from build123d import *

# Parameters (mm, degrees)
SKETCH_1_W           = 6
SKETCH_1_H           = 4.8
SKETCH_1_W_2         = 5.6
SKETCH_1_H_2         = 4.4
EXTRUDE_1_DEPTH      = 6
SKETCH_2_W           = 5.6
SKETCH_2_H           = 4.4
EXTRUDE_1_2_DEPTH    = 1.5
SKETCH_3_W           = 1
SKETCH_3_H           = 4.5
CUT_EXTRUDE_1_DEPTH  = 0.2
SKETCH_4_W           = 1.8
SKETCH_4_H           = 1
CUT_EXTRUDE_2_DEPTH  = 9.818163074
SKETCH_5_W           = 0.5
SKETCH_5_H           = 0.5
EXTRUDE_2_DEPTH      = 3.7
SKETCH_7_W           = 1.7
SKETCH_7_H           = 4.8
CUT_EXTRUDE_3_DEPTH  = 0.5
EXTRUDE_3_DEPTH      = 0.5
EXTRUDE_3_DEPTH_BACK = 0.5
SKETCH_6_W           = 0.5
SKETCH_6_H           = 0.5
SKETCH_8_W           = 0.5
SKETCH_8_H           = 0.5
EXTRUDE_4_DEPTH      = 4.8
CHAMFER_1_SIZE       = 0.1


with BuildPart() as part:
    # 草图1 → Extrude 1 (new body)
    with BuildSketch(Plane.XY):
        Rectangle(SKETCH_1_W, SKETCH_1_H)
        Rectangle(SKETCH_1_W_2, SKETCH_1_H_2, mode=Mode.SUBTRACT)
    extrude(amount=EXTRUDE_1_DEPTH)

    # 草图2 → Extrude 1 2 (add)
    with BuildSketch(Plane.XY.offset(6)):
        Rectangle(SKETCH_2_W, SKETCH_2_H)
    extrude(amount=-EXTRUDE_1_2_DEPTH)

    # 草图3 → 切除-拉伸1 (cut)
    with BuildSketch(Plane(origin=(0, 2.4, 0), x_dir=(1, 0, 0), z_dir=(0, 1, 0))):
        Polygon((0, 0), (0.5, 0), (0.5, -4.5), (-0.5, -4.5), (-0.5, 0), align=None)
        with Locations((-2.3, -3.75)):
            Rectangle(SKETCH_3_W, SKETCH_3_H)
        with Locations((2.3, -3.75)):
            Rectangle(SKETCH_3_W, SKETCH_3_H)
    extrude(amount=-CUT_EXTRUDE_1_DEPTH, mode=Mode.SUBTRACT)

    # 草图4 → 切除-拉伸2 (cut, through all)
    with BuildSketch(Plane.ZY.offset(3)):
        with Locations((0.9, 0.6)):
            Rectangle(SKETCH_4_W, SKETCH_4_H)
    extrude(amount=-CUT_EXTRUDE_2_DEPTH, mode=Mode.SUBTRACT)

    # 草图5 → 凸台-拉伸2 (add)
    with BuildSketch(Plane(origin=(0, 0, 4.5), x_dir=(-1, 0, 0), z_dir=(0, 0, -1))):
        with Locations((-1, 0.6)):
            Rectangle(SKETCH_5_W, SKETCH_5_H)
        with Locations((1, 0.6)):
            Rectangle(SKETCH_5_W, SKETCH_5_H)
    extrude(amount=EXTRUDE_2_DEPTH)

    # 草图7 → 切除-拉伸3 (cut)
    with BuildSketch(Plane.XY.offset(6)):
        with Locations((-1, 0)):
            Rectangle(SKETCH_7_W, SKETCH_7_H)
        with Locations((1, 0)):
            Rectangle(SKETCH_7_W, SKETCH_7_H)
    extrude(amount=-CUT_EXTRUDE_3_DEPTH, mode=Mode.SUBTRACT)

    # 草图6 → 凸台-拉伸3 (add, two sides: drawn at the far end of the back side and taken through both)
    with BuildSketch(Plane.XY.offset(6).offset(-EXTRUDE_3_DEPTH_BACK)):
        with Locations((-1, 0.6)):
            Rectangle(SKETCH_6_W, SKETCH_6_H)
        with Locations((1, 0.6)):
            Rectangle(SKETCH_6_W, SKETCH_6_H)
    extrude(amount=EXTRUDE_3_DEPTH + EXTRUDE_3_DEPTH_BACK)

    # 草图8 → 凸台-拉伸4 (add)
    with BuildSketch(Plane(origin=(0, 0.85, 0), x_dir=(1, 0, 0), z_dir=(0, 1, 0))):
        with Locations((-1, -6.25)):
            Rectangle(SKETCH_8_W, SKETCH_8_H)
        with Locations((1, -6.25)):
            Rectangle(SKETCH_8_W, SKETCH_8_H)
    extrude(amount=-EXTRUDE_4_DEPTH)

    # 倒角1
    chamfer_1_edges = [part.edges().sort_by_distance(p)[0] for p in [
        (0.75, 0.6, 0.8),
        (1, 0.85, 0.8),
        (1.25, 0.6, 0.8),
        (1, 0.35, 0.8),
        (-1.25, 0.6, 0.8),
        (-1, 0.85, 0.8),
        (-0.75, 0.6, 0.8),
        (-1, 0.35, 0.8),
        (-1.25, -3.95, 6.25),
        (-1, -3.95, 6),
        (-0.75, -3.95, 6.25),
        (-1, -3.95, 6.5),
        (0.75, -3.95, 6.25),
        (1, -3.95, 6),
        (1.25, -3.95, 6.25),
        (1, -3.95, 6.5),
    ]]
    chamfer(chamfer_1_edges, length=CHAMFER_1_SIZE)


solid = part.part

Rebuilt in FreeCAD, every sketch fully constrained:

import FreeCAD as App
import Part
import Sketcher


def edges_at(feature, points):
    """Names of the edges that pass closest to the given points."""
    edges = feature.Shape.Edges
    near = lambda p: min(range(len(edges)), key=lambda i: edges[i].distToShape(Part.Vertex(*p))[0])
    return sorted({f"Edge{near(p) + 1}" for p in points})

doc = App.newDocument("Part")
params = doc.addObject("Spreadsheet::Sheet", "Params")
for row, (alias, value) in enumerate([
    ("sketch1_width", "6 mm"),
    ("sketch1_width2", "5.6 mm"),
    ("sketch1_height", "4.8 mm"),
    ("sketch1_height2", "4.4 mm"),
    ("pad1_length", "6 mm"),
    ("sketch2_width", "5.6 mm"),
    ("sketch2_height", "4.4 mm"),
    ("pad2_length", "1.5 mm"),
    ("sketch3_width", "1 mm"),
    ("sketch3_height", "4.5 mm"),
    ("pocket1_length", "0.2 mm"),
    ("sketch4_width", "1 mm"),
    ("sketch4_height", "1.8 mm"),
    ("sketch5_width", "0.5 mm"),
    ("pad3_length", "3.7 mm"),
    ("sketch6_width", "1.7 mm"),
    ("sketch6_height", "4.8 mm"),
    ("pocket3_length", "0.5 mm"),
    ("sketch7_width", "0.5 mm"),
    ("pad4_length", "0.5 mm"),
    ("pad4_length2", "0.5 mm"),
    ("sketch8_width", "0.5 mm"),
    ("pad5_length", "4.8 mm"),
    ("chamfer_size", "0.1 mm"),
], start=1):
    params.set(f"A{row}", alias)
    params.set(f"B{row}", "=" + value)
    params.setAlias(f"B{row}", alias)

body = doc.addObject("PartDesign::Body", "Body")

sketch1 = doc.addObject("Sketcher::SketchObject", "Sketch")
body.addObject(sketch1)
sketch1.AttachmentSupport = (doc.XY_Plane, [""])
sketch1.MapMode = "FlatFace"
sketch1.addGeometry([
    Part.LineSegment(App.Vector(-3, 2.4, 0), App.Vector(-3, -2.4, 0)),
    Part.LineSegment(App.Vector(-3, -2.4, 0), App.Vector(3, -2.4, 0)),
    Part.LineSegment(App.Vector(3, -2.4, 0), App.Vector(3, 2.4, 0)),
    Part.LineSegment(App.Vector(3, 2.4, 0), App.Vector(-3, 2.4, 0)),
    Part.LineSegment(App.Vector(2.8, -2.2, 0), App.Vector(-2.8, -2.2, 0)),
    Part.LineSegment(App.Vector(-2.8, -2.2, 0), App.Vector(-2.8, 2.2, 0)),
    Part.LineSegment(App.Vector(-2.8, 2.2, 0), App.Vector(2.8, 2.2, 0)),
    Part.LineSegment(App.Vector(2.8, 2.2, 0), App.Vector(2.8, -2.2, 0)),
], False)
sketch1.addConstraint([
    Sketcher.Constraint("Coincident", 0, 2, 1, 1),
    Sketcher.Constraint("Coincident", 1, 2, 2, 1),
    Sketcher.Constraint("Coincident", 2, 2, 3, 1),
    Sketcher.Constraint("Coincident", 3, 2, 0, 1),
    Sketcher.Constraint("Coincident", 4, 2, 5, 1),
    Sketcher.Constraint("Coincident", 5, 2, 6, 1),
    Sketcher.Constraint("Coincident", 6, 2, 7, 1),
    Sketcher.Constraint("Coincident", 7, 2, 4, 1),
    Sketcher.Constraint("Vertical", 0),
    Sketcher.Constraint("Horizontal", 1),
    Sketcher.Constraint("Vertical", 2),
    Sketcher.Constraint("Horizontal", 3),
    Sketcher.Constraint("Horizontal", 4),
    Sketcher.Constraint("Vertical", 5),
    Sketcher.Constraint("Horizontal", 6),
    Sketcher.Constraint("Vertical", 7),
    Sketcher.Constraint("Symmetric", 0, 2, 2, 2, -1, 1),
    Sketcher.Constraint("Symmetric", 4, 2, 6, 2, -1, 1),
    Sketcher.Constraint("DistanceX", 1, 1, 1, 2, 6.0),
    Sketcher.Constraint("DistanceX", 4, 2, 4, 1, 5.6),
    Sketcher.Constraint("DistanceY", 0, 2, 0, 1, 4.8),
    Sketcher.Constraint("DistanceY", 5, 1, 5, 2, 4.4),
])
sketch1.setExpression("Constraints[18]", "Params.sketch1_width")
sketch1.setExpression("Constraints[19]", "Params.sketch1_width2")
sketch1.setExpression("Constraints[20]", "Params.sketch1_height")
sketch1.setExpression("Constraints[21]", "Params.sketch1_height2")
pad1 = doc.addObject("PartDesign::Pad", "Pad")
body.addObject(pad1)
pad1.Profile = sketch1
pad1.setExpression("Length", "Params.pad1_length")

sketch2 = doc.addObject("Sketcher::SketchObject", "Sketch001")
body.addObject(sketch2)
sketch2.AttachmentSupport = (doc.XY_Plane, [""])
sketch2.MapMode = "FlatFace"
sketch2.AttachmentOffset = App.Placement(App.Vector(0, 0, 6), App.Rotation())
sketch2.addGeometry([
    Part.LineSegment(App.Vector(-2.8, 2.2, 0), App.Vector(-2.8, -2.2, 0)),
    Part.LineSegment(App.Vector(-2.8, -2.2, 0), App.Vector(2.8, -2.2, 0)),
    Part.LineSegment(App.Vector(2.8, -2.2, 0), App.Vector(2.8, 2.2, 0)),
    Part.LineSegment(App.Vector(2.8, 2.2, 0), App.Vector(-2.8, 2.2, 0)),
], False)
sketch2.addConstraint([
    Sketcher.Constraint("Coincident", 0, 2, 1, 1),
    Sketcher.Constraint("Coincident", 1, 2, 2, 1),
    Sketcher.Constraint("Coincident", 2, 2, 3, 1),
    Sketcher.Constraint("Coincident", 3, 2, 0, 1),
    Sketcher.Constraint("Vertical", 0),
    Sketcher.Constraint("Horizontal", 1),
    Sketcher.Constraint("Vertical", 2),
    Sketcher.Constraint("Horizontal", 3),
    Sketcher.Constraint("Symmetric", 0, 2, 2, 2, -1, 1),
    Sketcher.Constraint("DistanceX", 1, 1, 1, 2, 5.6),
    Sketcher.Constraint("DistanceY", 0, 2, 0, 1, 4.4),
])
sketch2.setExpression("Constraints[9]", "Params.sketch2_width")
sketch2.setExpression("Constraints[10]", "Params.sketch2_height")
pad2 = doc.addObject("PartDesign::Pad", "Pad001")
body.addObject(pad2)
pad2.Profile = sketch2
pad2.setExpression("Length", "Params.pad2_length")
pad2.Reversed = True

sketch3 = doc.addObject("Sketcher::SketchObject", "Sketch002")
body.addObject(sketch3)
sketch3.AttachmentSupport = (doc.XZ_Plane, [""])
sketch3.MapMode = "FlatFace"
sketch3.AttachmentOffset = App.Placement(App.Vector(0, 0, -2.4), App.Rotation())
sketch3.addGeometry([
    Part.LineSegment(App.Vector(0.5, 0, 0), App.Vector(-0.5, 0, 0)),
    Part.LineSegment(App.Vector(-0.5, 0, 0), App.Vector(-0.5, 4.5, 0)),
    Part.LineSegment(App.Vector(-0.5, 4.5, 0), App.Vector(0.5, 4.5, 0)),
    Part.LineSegment(App.Vector(0.5, 4.5, 0), App.Vector(0.5, 0, 0)),
    Part.LineSegment(App.Vector(-2.8, 1.5, 0), App.Vector(-2.8, 6, 0)),
    Part.LineSegment(App.Vector(-2.8, 6, 0), App.Vector(-1.8, 6, 0)),
    Part.LineSegment(App.Vector(-1.8, 6, 0), App.Vector(-1.8, 1.5, 0)),
    Part.LineSegment(App.Vector(-1.8, 1.5, 0), App.Vector(-2.8, 1.5, 0)),
    Part.LineSegment(App.Vector(1.8, 1.5, 0), App.Vector(1.8, 6, 0)),
    Part.LineSegment(App.Vector(1.8, 6, 0), App.Vector(2.8, 6, 0)),
    Part.LineSegment(App.Vector(2.8, 6, 0), App.Vector(2.8, 1.5, 0)),
    Part.LineSegment(App.Vector(2.8, 1.5, 0), App.Vector(1.8, 1.5, 0)),
], False)
sketch3.addConstraint([
    Sketcher.Constraint("Coincident", 0, 2, 1, 1),
    Sketcher.Constraint("Coincident", 1, 2, 2, 1),
    Sketcher.Constraint("Coincident", 2, 2, 3, 1),
    Sketcher.Constraint("Coincident", 3, 2, 0, 1),
    Sketcher.Constraint("Coincident", 4, 2, 5, 1),
    Sketcher.Constraint("Coincident", 5, 2, 6, 1),
    Sketcher.Constraint("Coincident", 6, 2, 7, 1),
    Sketcher.Constraint("Coincident", 7, 2, 4, 1),
    Sketcher.Constraint("Coincident", 8, 2, 9, 1),
    Sketcher.Constraint("Coincident", 9, 2, 10, 1),
    Sketcher.Constraint("Coincident", 10, 2, 11, 1),
    Sketcher.Constraint("Coincident", 11, 2, 8, 1),
    Sketcher.Constraint("Horizontal", 0),
    Sketcher.Constraint("Vertical", 1),
    Sketcher.Constraint("Horizontal", 2),
    Sketcher.Constraint("Vertical", 3),
    Sketcher.Constraint("Vertical", 4),
    Sketcher.Constraint("Horizontal", 5),
    Sketcher.Constraint("Vertical", 6),
    Sketcher.Constraint("Horizontal", 7),
    Sketcher.Constraint("Vertical", 8),
    Sketcher.Constraint("Horizontal", 9),
    Sketcher.Constraint("Vertical", 10),
    Sketcher.Constraint("Horizontal", 11),
    Sketcher.Constraint("Symmetric", 0, 2, 3, 2, -1, 1),
    Sketcher.Constraint("Symmetric", 5, 2, 8, 2, -2),
    Sketcher.Constraint("Symmetric", 7, 2, 10, 2, -2),
    Sketcher.Constraint("Equal", 2, 5),
    Sketcher.Constraint("Equal", 3, 4),
    Sketcher.Constraint("DistanceX", 0, 2, 0, 1, 1.0),
    Sketcher.Constraint("DistanceY", 1, 1, 1, 2, 4.5),
    Sketcher.Constraint("DistanceY", -1, 1, 4, 2, 6.0),
    Sketcher.Constraint("DistanceX", 4, 2, -1, 1, 2.8),
])
sketch3.setExpression("Constraints[29]", "Params.sketch3_width")
sketch3.setExpression("Constraints[30]", "Params.sketch3_height")
pocket1 = doc.addObject("PartDesign::Pocket", "Pocket")
body.addObject(pocket1)
pocket1.Profile = sketch3
pocket1.setExpression("Length", "Params.pocket1_length")
pocket1.Reversed = True

sketch4 = doc.addObject("Sketcher::SketchObject", "Sketch003")
body.addObject(sketch4)
sketch4.AttachmentSupport = (doc.YZ_Plane, [""])
sketch4.MapMode = "FlatFace"
sketch4.AttachmentOffset = App.Placement(App.Vector(0, 0, -3), App.Rotation())
sketch4.addGeometry([
    Part.LineSegment(App.Vector(1.1, 0, 0), App.Vector(0.1, 0, 0)),
    Part.LineSegment(App.Vector(0.1, 0, 0), App.Vector(0.1, 1.8, 0)),
    Part.LineSegment(App.Vector(0.1, 1.8, 0), App.Vector(1.1, 1.8, 0)),
    Part.LineSegment(App.Vector(1.1, 1.8, 0), App.Vector(1.1, 0, 0)),
], False)
sketch4.addConstraint([
    Sketcher.Constraint("Coincident", 0, 2, 1, 1),
    Sketcher.Constraint("Coincident", 1, 2, 2, 1),
    Sketcher.Constraint("Coincident", 2, 2, 3, 1),
    Sketcher.Constraint("Coincident", 3, 2, 0, 1),
    Sketcher.Constraint("Horizontal", 0),
    Sketcher.Constraint("Vertical", 1),
    Sketcher.Constraint("Horizontal", 2),
    Sketcher.Constraint("Vertical", 3),
    Sketcher.Constraint("PointOnObject", 0, 2, -1),
    Sketcher.Constraint("DistanceX", 0, 2, 0, 1, 1.0),
    Sketcher.Constraint("DistanceY", 1, 1, 1, 2, 1.8),
    Sketcher.Constraint("DistanceX", -1, 1, 0, 2, 0.1),
])
sketch4.setExpression("Constraints[9]", "Params.sketch4_width")
sketch4.setExpression("Constraints[10]", "Params.sketch4_height")
pocket2 = doc.addObject("PartDesign::Pocket", "Pocket001")
body.addObject(pocket2)
pocket2.Profile = sketch4
pocket2.Type = "ThroughAll"
pocket2.Reversed = True

sketch5 = doc.addObject("Sketcher::SketchObject", "Sketch004")
body.addObject(sketch5)
sketch5.AttachmentSupport = (doc.XY_Plane, [""])
sketch5.MapMode = "FlatFace"
sketch5.AttachmentOffset = App.Placement(App.Vector(0, 0, 4.5), App.Rotation())
sketch5.addGeometry([
    Part.LineSegment(App.Vector(1.2, 0.8, 0), App.Vector(1.2, 0.3, 0)),
    Part.LineSegment(App.Vector(1.2, 0.3, 0), App.Vector(0.8, 0.3, 0)),
    Part.LineSegment(App.Vector(0.8, 0.3, 0), App.Vector(0.8, 0.8, 0)),
    Part.LineSegment(App.Vector(0.8, 0.8, 0), App.Vector(1.2, 0.8, 0)),
    Part.LineSegment(App.Vector(-0.8, 0.8, 0), App.Vector(-0.8, 0.3, 0)),
    Part.LineSegment(App.Vector(-0.8, 0.3, 0), App.Vector(-1.2, 0.3, 0)),
    Part.LineSegment(App.Vector(-1.2, 0.3, 0), App.Vector(-1.2, 0.8, 0)),
    Part.LineSegment(App.Vector(-1.2, 0.8, 0), App.Vector(-0.8, 0.8, 0)),
], False)
sketch5.addConstraint([
    Sketcher.Constraint("Coincident", 0, 2, 1, 1),
    Sketcher.Constraint("Coincident", 1, 2, 2, 1),
    Sketcher.Constraint("Coincident", 2, 2, 3, 1),
    Sketcher.Constraint("Coincident", 3, 2, 0, 1),
    Sketcher.Constraint("Coincident", 4, 2, 5, 1),
    Sketcher.Constraint("Coincident", 5, 2, 6, 1),
    Sketcher.Constraint("Coincident", 6, 2, 7, 1),
    Sketcher.Constraint("Coincident", 7, 2, 4, 1),
    Sketcher.Constraint("Vertical", 0),
    Sketcher.Constraint("Horizontal", 1),
    Sketcher.Constraint("Vertical", 2),
    Sketcher.Constraint("Horizontal", 3),
    Sketcher.Constraint("Vertical", 4),
    Sketcher.Constraint("Horizontal", 5),
    Sketcher.Constraint("Vertical", 6),
    Sketcher.Constraint("Horizontal", 7),
    Sketcher.Constraint("Symmetric", 1, 2, 4, 2, -2),
    Sketcher.Constraint("Symmetric", 3, 2, 6, 2, -2),
    Sketcher.Constraint("Equal", 7, 0),
    Sketcher.Constraint("DistanceX", 1, 2, 1, 1, 0.5),
    Sketcher.Constraint("DistanceX", 4, 2, 0, 2, 2.0),
    Sketcher.Constraint("DistanceY", -1, 1, 0, 2, 0.35),
])
sketch5.setExpression("Constraints[19]", "Params.sketch5_width")
pad3 = doc.addObject("PartDesign::Pad", "Pad002")
body.addObject(pad3)
pad3.Profile = sketch5
pad3.setExpression("Length", "Params.pad3_length")
pad3.Reversed = True

sketch6 = doc.addObject("Sketcher::SketchObject", "Sketch005")
body.addObject(sketch6)
sketch6.AttachmentSupport = (doc.XY_Plane, [""])
sketch6.MapMode = "FlatFace"
sketch6.AttachmentOffset = App.Placement(App.Vector(0, 0, 6), App.Rotation())
sketch6.addGeometry([
    Part.LineSegment(App.Vector(-1.9, 2.4, 0), App.Vector(-1.9, -2.4, 0)),
    Part.LineSegment(App.Vector(-1.9, -2.4, 0), App.Vector(-0.1, -2.4, 0)),
    Part.LineSegment(App.Vector(-0.1, -2.4, 0), App.Vector(-0.1, 2.4, 0)),
    Part.LineSegment(App.Vector(-0.1, 2.4, 0), App.Vector(-1.9, 2.4, 0)),
    Part.LineSegment(App.Vector(0.1, 2.4, 0), App.Vector(0.1, -2.4, 0)),
    Part.LineSegment(App.Vector(0.1, -2.4, 0), App.Vector(1.9, -2.4, 0)),
    Part.LineSegment(App.Vector(1.9, -2.4, 0), App.Vector(1.9, 2.4, 0)),
    Part.LineSegment(App.Vector(1.9, 2.4, 0), App.Vector(0.1, 2.4, 0)),
], False)
sketch6.addConstraint([
    Sketcher.Constraint("Coincident", 0, 2, 1, 1),
    Sketcher.Constraint("Coincident", 1, 2, 2, 1),
    Sketcher.Constraint("Coincident", 2, 2, 3, 1),
    Sketcher.Constraint("Coincident", 3, 2, 0, 1),
    Sketcher.Constraint("Coincident", 4, 2, 5, 1),
    Sketcher.Constraint("Coincident", 5, 2, 6, 1),
    Sketcher.Constraint("Coincident", 6, 2, 7, 1),
    Sketcher.Constraint("Coincident", 7, 2, 4, 1),
    Sketcher.Constraint("Vertical", 0),
    Sketcher.Constraint("Horizontal", 1),
    Sketcher.Constraint("Vertical", 2),
    Sketcher.Constraint("Horizontal", 3),
    Sketcher.Constraint("Vertical", 4),
    Sketcher.Constraint("Horizontal", 5),
    Sketcher.Constraint("Vertical", 6),
    Sketcher.Constraint("Horizontal", 7),
    Sketcher.Constraint("Symmetric", 2, 2, 4, 2, -1, 1),
    Sketcher.Constraint("Symmetric", 0, 2, 6, 2, -1, 1),
    Sketcher.Constraint("Horizontal", 1, 2, 4, 2),
    Sketcher.Constraint("DistanceX", 1, 1, 1, 2, 1.7),
    Sketcher.Constraint("DistanceY", 0, 2, 0, 1, 4.8),
    Sketcher.Constraint("DistanceX", 0, 2, 4, 2, 2.0),
])
sketch6.setExpression("Constraints[19]", "Params.sketch6_width")
sketch6.setExpression("Constraints[20]", "Params.sketch6_height")
pocket3 = doc.addObject("PartDesign::Pocket", "Pocket002")
body.addObject(pocket3)
pocket3.Profile = sketch6
pocket3.setExpression("Length", "Params.pocket3_length")

sketch7 = doc.addObject("Sketcher::SketchObject", "Sketch006")
body.addObject(sketch7)
sketch7.AttachmentSupport = (doc.XY_Plane, [""])
sketch7.MapMode = "FlatFace"
sketch7.AttachmentOffset = App.Placement(App.Vector(0, 0, 6), App.Rotation())
sketch7.addGeometry([
    Part.LineSegment(App.Vector(-1.2, 0.8, 0), App.Vector(-1.2, 0.3, 0)),
    Part.LineSegment(App.Vector(-1.2, 0.3, 0), App.Vector(-0.8, 0.3, 0)),
    Part.LineSegment(App.Vector(-0.8, 0.3, 0), App.Vector(-0.8, 0.8, 0)),
    Part.LineSegment(App.Vector(-0.8, 0.8, 0), App.Vector(-1.2, 0.8, 0)),
    Part.LineSegment(App.Vector(0.8, 0.8, 0), App.Vector(0.8, 0.3, 0)),
    Part.LineSegment(App.Vector(0.8, 0.3, 0), App.Vector(1.2, 0.3, 0)),
    Part.LineSegment(App.Vector(1.2, 0.3, 0), App.Vector(1.2, 0.8, 0)),
    Part.LineSegment(App.Vector(1.2, 0.8, 0), App.Vector(0.8, 0.8, 0)),
], False)
sketch7.addConstraint([
    Sketcher.Constraint("Coincident", 0, 2, 1, 1),
    Sketcher.Constraint("Coincident", 1, 2, 2, 1),
    Sketcher.Constraint("Coincident", 2, 2, 3, 1),
    Sketcher.Constraint("Coincident", 3, 2, 0, 1),
    Sketcher.Constraint("Coincident", 4, 2, 5, 1),
    Sketcher.Constraint("Coincident", 5, 2, 6, 1),
    Sketcher.Constraint("Coincident", 6, 2, 7, 1),
    Sketcher.Constraint("Coincident", 7, 2, 4, 1),
    Sketcher.Constraint("Vertical", 0),
    Sketcher.Constraint("Horizontal", 1),
    Sketcher.Constraint("Vertical", 2),
    Sketcher.Constraint("Horizontal", 3),
    Sketcher.Constraint("Vertical", 4),
    Sketcher.Constraint("Horizontal", 5),
    Sketcher.Constraint("Vertical", 6),
    Sketcher.Constraint("Horizontal", 7),
    Sketcher.Constraint("Symmetric", 1, 2, 4, 2, -2),
    Sketcher.Constraint("Symmetric", 3, 2, 6, 2, -2),
    Sketcher.Constraint("Equal", 7, 0),
    Sketcher.Constraint("DistanceX", 1, 1, 1, 2, 0.5),
    Sketcher.Constraint("DistanceX", 0, 2, 4, 2, 2.0),
    Sketcher.Constraint("DistanceY", -1, 1, 0, 2, 0.35),
])
sketch7.setExpression("Constraints[19]", "Params.sketch7_width")
pad4 = doc.addObject("PartDesign::Pad", "Pad003")
body.addObject(pad4)
pad4.Profile = sketch7
pad4.Type = "TwoLengths"
pad4.setExpression("Length", "Params.pad4_length")
pad4.setExpression("Length2", "Params.pad4_length2")

sketch8 = doc.addObject("Sketcher::SketchObject", "Sketch007")
body.addObject(sketch8)
sketch8.AttachmentSupport = (doc.XZ_Plane, [""])
sketch8.MapMode = "FlatFace"
sketch8.AttachmentOffset = App.Placement(App.Vector(0, 0, -0.85), App.Rotation())
sketch8.addGeometry([
    Part.LineSegment(App.Vector(-1.2, 6, 0), App.Vector(-1.2, 6.5, 0)),
    Part.LineSegment(App.Vector(-1.2, 6.5, 0), App.Vector(-0.8, 6.5, 0)),
    Part.LineSegment(App.Vector(-0.8, 6.5, 0), App.Vector(-0.8, 6, 0)),
    Part.LineSegment(App.Vector(-0.8, 6, 0), App.Vector(-1.2, 6, 0)),
    Part.LineSegment(App.Vector(0.8, 6, 0), App.Vector(0.8, 6.5, 0)),
    Part.LineSegment(App.Vector(0.8, 6.5, 0), App.Vector(1.2, 6.5, 0)),
    Part.LineSegment(App.Vector(1.2, 6.5, 0), App.Vector(1.2, 6, 0)),
    Part.LineSegment(App.Vector(1.2, 6, 0), App.Vector(0.8, 6, 0)),
], False)
sketch8.addConstraint([
    Sketcher.Constraint("Coincident", 0, 2, 1, 1),
    Sketcher.Constraint("Coincident", 1, 2, 2, 1),
    Sketcher.Constraint("Coincident", 2, 2, 3, 1),
    Sketcher.Constraint("Coincident", 3, 2, 0, 1),
    Sketcher.Constraint("Coincident", 4, 2, 5, 1),
    Sketcher.Constraint("Coincident", 5, 2, 6, 1),
    Sketcher.Constraint("Coincident", 6, 2, 7, 1),
    Sketcher.Constraint("Coincident", 7, 2, 4, 1),
    Sketcher.Constraint("Vertical", 0),
    Sketcher.Constraint("Horizontal", 1),
    Sketcher.Constraint("Vertical", 2),
    Sketcher.Constraint("Horizontal", 3),
    Sketcher.Constraint("Vertical", 4),
    Sketcher.Constraint("Horizontal", 5),
    Sketcher.Constraint("Vertical", 6),
    Sketcher.Constraint("Horizontal", 7),
    Sketcher.Constraint("Symmetric", 1, 2, 4, 2, -2),
    Sketcher.Constraint("Symmetric", 3, 2, 6, 2, -2),
    Sketcher.Constraint("Equal", 7, 0),
    Sketcher.Constraint("DistanceX", 1, 1, 1, 2, 0.5),
    Sketcher.Constraint("DistanceY", -1, 1, 2, 2, 6.0),
    Sketcher.Constraint("DistanceX", 0, 2, 4, 2, 2.0),
])
sketch8.setExpression("Constraints[19]", "Params.sketch8_width")
pad5 = doc.addObject("PartDesign::Pad", "Pad004")
body.addObject(pad5)
pad5.Profile = sketch8
pad5.setExpression("Length", "Params.pad5_length")
doc.recompute()

chamfer = doc.addObject("PartDesign::Chamfer", "Chamfer")
body.addObject(chamfer)
chamfer.Base = (pad5, edges_at(pad5, [
    (0.75, 0.6, 0.8),
    (1, 0.85, 0.8),
    (1.25, 0.6, 0.8),
    (1, 0.35, 0.8),
    (-1.25, 0.6, 0.8),
    (-1, 0.85, 0.8),
    (-0.75, 0.6, 0.8),
    (-1, 0.35, 0.8),
    (-1.25, -3.95, 6.25),
    (-1, -3.95, 6),
    (-0.75, -3.95, 6.25),
    (-1, -3.95, 6.5),
    (0.75, -3.95, 6.25),
    (1, -3.95, 6),
    (1.25, -3.95, 6.25),
    (1, -3.95, 6.5),
]))
chamfer.setExpression("Size", "Params.chamfer_size")

doc.recompute()
